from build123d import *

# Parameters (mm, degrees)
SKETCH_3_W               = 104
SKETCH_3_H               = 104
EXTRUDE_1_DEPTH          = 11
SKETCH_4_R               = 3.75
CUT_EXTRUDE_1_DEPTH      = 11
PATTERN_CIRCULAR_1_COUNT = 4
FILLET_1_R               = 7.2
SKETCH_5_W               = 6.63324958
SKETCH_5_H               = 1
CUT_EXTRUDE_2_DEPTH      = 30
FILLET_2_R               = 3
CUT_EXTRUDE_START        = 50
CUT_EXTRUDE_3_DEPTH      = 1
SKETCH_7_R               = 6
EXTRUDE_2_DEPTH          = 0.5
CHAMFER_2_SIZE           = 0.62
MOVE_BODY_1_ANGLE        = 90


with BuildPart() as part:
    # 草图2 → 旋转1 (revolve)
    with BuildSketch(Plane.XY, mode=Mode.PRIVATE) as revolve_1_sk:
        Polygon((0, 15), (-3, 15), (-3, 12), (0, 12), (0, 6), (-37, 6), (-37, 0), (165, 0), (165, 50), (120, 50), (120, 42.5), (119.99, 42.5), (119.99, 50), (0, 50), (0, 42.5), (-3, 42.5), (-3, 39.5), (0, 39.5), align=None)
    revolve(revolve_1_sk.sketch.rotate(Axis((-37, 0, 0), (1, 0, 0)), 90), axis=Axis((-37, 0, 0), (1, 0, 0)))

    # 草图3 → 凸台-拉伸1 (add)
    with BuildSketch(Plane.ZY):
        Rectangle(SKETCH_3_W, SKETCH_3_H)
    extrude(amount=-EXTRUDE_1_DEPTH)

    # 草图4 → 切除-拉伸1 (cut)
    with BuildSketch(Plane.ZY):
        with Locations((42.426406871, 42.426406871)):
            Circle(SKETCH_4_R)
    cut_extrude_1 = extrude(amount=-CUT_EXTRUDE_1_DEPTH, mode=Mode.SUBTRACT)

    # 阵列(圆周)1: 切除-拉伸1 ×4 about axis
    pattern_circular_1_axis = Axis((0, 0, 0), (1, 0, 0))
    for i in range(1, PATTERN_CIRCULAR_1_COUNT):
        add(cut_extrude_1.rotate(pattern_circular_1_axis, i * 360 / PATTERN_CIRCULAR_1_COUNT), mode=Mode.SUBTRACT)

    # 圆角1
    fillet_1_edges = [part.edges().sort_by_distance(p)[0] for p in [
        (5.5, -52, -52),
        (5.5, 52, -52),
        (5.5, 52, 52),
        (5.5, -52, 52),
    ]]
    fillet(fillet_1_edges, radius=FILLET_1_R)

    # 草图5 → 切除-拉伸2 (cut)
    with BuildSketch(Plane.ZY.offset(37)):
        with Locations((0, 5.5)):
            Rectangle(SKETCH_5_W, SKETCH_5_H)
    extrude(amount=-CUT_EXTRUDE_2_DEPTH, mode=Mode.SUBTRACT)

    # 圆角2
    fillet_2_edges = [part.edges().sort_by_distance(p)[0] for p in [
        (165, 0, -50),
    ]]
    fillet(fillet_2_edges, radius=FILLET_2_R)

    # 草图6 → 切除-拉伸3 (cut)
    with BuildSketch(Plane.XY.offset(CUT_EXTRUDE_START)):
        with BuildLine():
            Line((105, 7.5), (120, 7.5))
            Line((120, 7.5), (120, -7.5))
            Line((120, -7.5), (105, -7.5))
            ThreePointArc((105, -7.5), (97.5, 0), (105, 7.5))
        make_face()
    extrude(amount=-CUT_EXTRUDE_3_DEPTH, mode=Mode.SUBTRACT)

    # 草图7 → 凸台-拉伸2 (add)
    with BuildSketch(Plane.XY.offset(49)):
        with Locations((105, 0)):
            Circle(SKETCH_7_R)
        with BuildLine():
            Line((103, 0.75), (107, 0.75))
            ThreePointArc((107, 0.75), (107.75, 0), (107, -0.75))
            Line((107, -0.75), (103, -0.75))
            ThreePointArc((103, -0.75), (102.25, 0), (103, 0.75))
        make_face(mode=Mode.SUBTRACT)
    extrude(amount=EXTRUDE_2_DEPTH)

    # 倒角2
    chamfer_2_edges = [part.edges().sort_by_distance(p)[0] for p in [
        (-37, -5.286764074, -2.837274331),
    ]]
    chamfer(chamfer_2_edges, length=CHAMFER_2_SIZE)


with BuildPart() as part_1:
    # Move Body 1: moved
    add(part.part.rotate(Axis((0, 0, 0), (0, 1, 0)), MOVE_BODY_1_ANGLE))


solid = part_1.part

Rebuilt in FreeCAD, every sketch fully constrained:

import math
import FreeCAD as App
import Part
import Sketcher

V = App.Vector


def edges_at(feature, points):
    """Names of the edges that pass closest to the given points."""
    edges = feature.Shape.Edges
    near = lambda p: min(range(len(edges)), key=lambda i: edges[i].distToShape(Part.Vertex(*p))[0])
    return sorted({f"Edge{near(p) + 1}" for p in points})


def add_polygon(sketch, points):
    """Adds a closed chain of lines whose ends are joined by coincident constraints."""
    first, n = sketch.GeometryCount, len(points)
    for a, b in zip(points, points[1:] + points[:1]):
        sketch.addGeometry(Part.LineSegment(App.Vector(*a, 0), App.Vector(*b, 0)), False)
    for i in range(n):
        sketch.addConstraint(Sketcher.Constraint("Coincident", first + i, 2, first + (i + 1) % n, 1))

doc = App.newDocument("Part")
body = doc.addObject("PartDesign::Body", "Body")

sketch1 = body.newObject("Sketcher::SketchObject", "Sketch")
sketch1.AttachmentSupport = (doc.getObject("XY_Plane"), [""])
sketch1.MapMode = "FlatFace"
add_polygon(sketch1, [(0, 15), (-3, 15), (-3, 12), (0, 12), (0, 6), (-37, 6), (-37, 0), (165, 0), (165, 50), (120, 50), (120, 42.5), (119.99, 42.5), (119.99, 50), (0, 50), (0, 42.5), (-3, 42.5), (-3, 39.5), (0, 39.5)])
sketch1.addConstraint(Sketcher.Constraint("Horizontal", 0))
sketch1.addConstraint(Sketcher.Constraint("Vertical", 1))
sketch1.addConstraint(Sketcher.Constraint("Horizontal", 2))
sketch1.addConstraint(Sketcher.Constraint("Vertical", 3))
sketch1.addConstraint(Sketcher.Constraint("Horizontal", 4))
sketch1.addConstraint(Sketcher.Constraint("Vertical", 5))
sketch1.addConstraint(Sketcher.Constraint("Horizontal", 6))
sketch1.addConstraint(Sketcher.Constraint("Vertical", 7))
sketch1.addConstraint(Sketcher.Constraint("Horizontal", 8))
sketch1.addConstraint(Sketcher.Constraint("Vertical", 9))
sketch1.addConstraint(Sketcher.Constraint("Horizontal", 10))
sketch1.addConstraint(Sketcher.Constraint("Vertical", 11))
sketch1.addConstraint(Sketcher.Constraint("Horizontal", 12))
sketch1.addConstraint(Sketcher.Constraint("Vertical", 13))
sketch1.addConstraint(Sketcher.Constraint("Horizontal", 14))
sketch1.addConstraint(Sketcher.Constraint("Vertical", 15))
sketch1.addConstraint(Sketcher.Constraint("Horizontal", 16))
sketch1.addConstraint(Sketcher.Constraint("Vertical", 17))
sketch1.addConstraint(Sketcher.Constraint("PointOnObject", 2, 2, -2))
sketch1.addConstraint(Sketcher.Constraint("PointOnObject", 5, 2, -1))
sketch1.addConstraint(Sketcher.Constraint("PointOnObject", 12, 2, -2))
sketch1.addConstraint(Sketcher.Constraint("PointOnObject", 16, 2, -2))
sketch1.addConstraint(Sketcher.Constraint("Horizontal", 8, 2, 11, 2))
sketch1.addConstraint(Sketcher.Constraint("Horizontal", 10, 2, 13, 2))
sketch1.addConstraint(Sketcher.Constraint("Vertical", 1, 2, 14, 2))
sketch1.addConstraint(Sketcher.Constraint("Equal", 16, 1))
sketch1.addConstraint(Sketcher.Constraint("Equal", 3, 5))
sketch1.addConstraint(Sketcher.Constraint("Equal", 1, 15))
sketch1.addConstraint(Sketcher.Constraint("DistanceX", 0, 2, 0, 1, 3.0))
sketch1.addConstraint(Sketcher.Constraint("DistanceX", 4, 2, 4, 1, 37.0))
sketch1.addConstraint(Sketcher.Constraint("DistanceX", 6, 1, 6, 2, 202.0))
sketch1.addConstraint(Sketcher.Constraint("DistanceX", 8, 2, 8, 1, 45.0))
sketch1.addConstraint(Sketcher.Constraint("DistanceY", 3, 2, 3, 1, 6.0))
sketch1.addConstraint(Sketcher.Constraint("DistanceY", 7, 1, 7, 2, 50.0))
sketch1.addConstraint(Sketcher.Constraint("DistanceY", 9, 2, 9, 1, 7.5))
sketch1.addConstraint(Sketcher.Constraint("DistanceX", 10, 2, 10, 1, 0.01))
revolution = body.newObject("PartDesign::Revolution", "Revolution")
revolution.Profile = sketch1
revolution.ReferenceAxis = (sketch1, ["H_Axis"])
revolution.Angle = 360

sketch2 = body.newObject("Sketcher::SketchObject", "Sketch001")
sketch2.AttachmentSupport = (doc.getObject("YZ_Plane"), [""])
sketch2.MapMode = "FlatFace"
add_polygon(sketch2, [(52, -52), (-52, -52), (-52, 52), (52, 52)])
sketch2.addConstraint(Sketcher.Constraint("Horizontal", 0))
sketch2.addConstraint(Sketcher.Constraint("Vertical", 1))
sketch2.addConstraint(Sketcher.Constraint("Horizontal", 2))
sketch2.addConstraint(Sketcher.Constraint("Vertical", 3))
sketch2.addConstraint(Sketcher.Constraint("Symmetric", 0, 2, 2, 2, -1, 1))
sketch2.addConstraint(Sketcher.Constraint("Equal", 2, 1))
sketch2.addConstraint(Sketcher.Constraint("DistanceX", 0, 2, 0, 1, 104.0))
pad1 = body.newObject("PartDesign::Pad", "Pad")
pad1.Profile = sketch2
pad1.Length = 11

sketch3 = body.newObject("Sketcher::SketchObject", "Sketch002")
sketch3.AttachmentSupport = (doc.getObject("YZ_Plane"), [""])
sketch3.MapMode = "FlatFace"
sketch3.addGeometry(Part.Circle(V(42.426407, 42.426407, 0), V(0, 0, 1), 3.75), False)
sketch3.addConstraint(Sketcher.Constraint("Diameter", 0, 7.5))
sketch3.addConstraint(Sketcher.Constraint("DistanceX", -1, 1, 0, 3, 42.426407))
sketch3.addConstraint(Sketcher.Constraint("DistanceY", -1, 1, 0, 3, 42.426407))
pocket1 = body.newObject("PartDesign::Pocket", "Pocket")
pocket1.Profile = sketch3
pocket1.Length = 11
pocket1.Reversed = True
doc.recompute()

polarpattern = body.newObject("PartDesign::PolarPattern", "PolarPattern")
polarpattern.Originals = [pocket1]
polarpattern.Axis = (doc.getObject("X_Axis"), [""])
polarpattern.Angle = 360
polarpattern.Occurrences = 4
body.Tip = polarpattern
doc.recompute()

fillet = body.newObject("PartDesign::Fillet", "Fillet")
fillet.Base = (polarpattern, edges_at(polarpattern, [
    (5.5, -52, -52),
    (5.5, 52, -52),
    (5.5, 52, 52),
    (5.5, -52, 52),
]))
fillet.Radius = 7.2

sketch4 = body.newObject("Sketcher::SketchObject", "Sketch003")
sketch4.AttachmentSupport = (doc.getObject("YZ_Plane"), [""])
sketch4.MapMode = "FlatFace"
sketch4.AttachmentOffset = App.Placement(V(0, 0, -37), App.Rotation())
add_polygon(sketch4, [(6, -3.316625), (5, -3.316625), (5, 3.316625), (6, 3.316625)])
sketch4.addConstraint(Sketcher.Constraint("Horizontal", 0))
sketch4.addConstraint(Sketcher.Constraint("Vertical", 1))
sketch4.addConstraint(Sketcher.Constraint("Horizontal", 2))
sketch4.addConstraint(Sketcher.Constraint("Vertical", 3))
sketch4.addConstraint(Sketcher.Constraint("DistanceX", 0, 2, 0, 1, 1.0))
sketch4.addConstraint(Sketcher.Constraint("DistanceX", -1, 1, 0, 2, 5.0))
sketch4.addConstraint(Sketcher.Constraint("DistanceY", 1, 1, 1, 2, 6.63325))
sketch4.addConstraint(Sketcher.Constraint("DistanceY", 0, 2, -1, 1, 3.316625))
pocket2 = body.newObject("PartDesign::Pocket", "Pocket001")
pocket2.Profile = sketch4
pocket2.Length = 30
pocket2.Reversed = True
doc.recompute()

fillet2 = body.newObject("PartDesign::Fillet", "Fillet001")
fillet2.Base = (pocket2, edges_at(pocket2, [(165, 0, -50)]))
fillet2.Radius = 3

sketch5 = body.newObject("Sketcher::SketchObject", "Sketch004")
sketch5.AttachmentSupport = (doc.getObject("XY_Plane"), [""])
sketch5.MapMode = "FlatFace"
sketch5.AttachmentOffset = App.Placement(V(0, 0, 50), App.Rotation())
sketch5.addGeometry(Part.LineSegment(V(120, 7.5, 0), V(105, 7.5, 0)), False)
sketch5.addGeometry(Part.ArcOfCircle(Part.Circle(V(105, 0, 0), V(0, 0, 1), 7.5), math.radians(90), math.radians(270)), False)
sketch5.addGeometry(Part.LineSegment(V(105, -7.5, 0), V(120, -7.5, 0)), False)
sketch5.addGeometry(Part.LineSegment(V(120, -7.5, 0), V(120, 7.5, 0)), False)
sketch5.addConstraint(Sketcher.Constraint("Tangent", 0, 2, 1, 1))
sketch5.addConstraint(Sketcher.Constraint("Tangent", 1, 2, 2, 1))
sketch5.addConstraint(Sketcher.Constraint("Coincident", 2, 2, 3, 1))
sketch5.addConstraint(Sketcher.Constraint("Coincident", 3, 2, 0, 1))
sketch5.addConstraint(Sketcher.Constraint("Horizontal", 0))
sketch5.addConstraint(Sketcher.Constraint("Horizontal", 2))
sketch5.addConstraint(Sketcher.Constraint("Vertical", 3))
sketch5.addConstraint(Sketcher.Constraint("PointOnObject", 1, 3, -1))
sketch5.addConstraint(Sketcher.Constraint("Equal", 2, 3))
sketch5.addConstraint(Sketcher.Constraint("Radius", 1, 7.5))
sketch5.addConstraint(Sketcher.Constraint("DistanceX", -1, 1, 1, 3, 105.0))
pocket3 = body.newObject("PartDesign::Pocket", "Pocket002")
pocket3.Profile = sketch5
pocket3.Length = 1

sketch6 = body.newObject("Sketcher::SketchObject", "Sketch005")
sketch6.AttachmentSupport = (doc.getObject("XY_Plane"), [""])
sketch6.MapMode = "FlatFace"
sketch6.AttachmentOffset = App.Placement(V(0, 0, 49), App.Rotation())
sketch6.addGeometry(Part.Circle(V(105, 0, 0), V(0, 0, 1), 6), False)
sketch6.addGeometry(Part.ArcOfCircle(Part.Circle(V(103, 0, 0), V(0, 0, 1), 0.75), math.radians(90), math.radians(270)), False)
sketch6.addGeometry(Part.LineSegment(V(103, 0.75, 0), V(107, 0.75, 0)), False)
sketch6.addGeometry(Part.ArcOfCircle(Part.Circle(V(107, 0, 0), V(0, 0, 1), 0.75), math.radians(-90), math.radians(90)), False)
sketch6.addGeometry(Part.LineSegment(V(107, -0.75, 0), V(103, -0.75, 0)), False)
sketch6.addConstraint(Sketcher.Constraint("Tangent", 1, 1, 2, 1))
sketch6.addConstraint(Sketcher.Constraint("Tangent", 2, 2, 3, 2))
sketch6.addConstraint(Sketcher.Constraint("Tangent", 3, 1, 4, 1))
sketch6.addConstraint(Sketcher.Constraint("Tangent", 4, 2, 1, 2))
sketch6.addConstraint(Sketcher.Constraint("Horizontal", 2))
sketch6.addConstraint(Sketcher.Constraint("Horizontal", 4))
sketch6.addConstraint(Sketcher.Constraint("PointOnObject", 0, 3, -1))
sketch6.addConstraint(Sketcher.Constraint("PointOnObject", 1, 3, -1))
sketch6.addConstraint(Sketcher.Constraint("Diameter", 0, 12.0))
sketch6.addConstraint(Sketcher.Constraint("DistanceX", 2, 1, 2, 2, 4.0))
sketch6.addConstraint(Sketcher.Constraint("Radius", 1, 0.75))
sketch6.addConstraint(Sketcher.Constraint("DistanceX", -1, 1, 0, 3, 105.0))
sketch6.addConstraint(Sketcher.Constraint("DistanceX", -1, 1, 1, 3, 103.0))
pad2 = body.newObject("PartDesign::Pad", "Pad001")
pad2.Profile = sketch6
pad2.Length = 0.5
doc.recompute()

chamfer = body.newObject("PartDesign::Chamfer", "Chamfer")
chamfer.Base = (pad2, edges_at(pad2, [(-37, -5.287, -2.837)]))
chamfer.Size = 0.62
body2 = doc.addObject("PartDesign::Body", "Body001")
doc.recompute()

body.Placement = App.Placement(V(0, 0, 0), App.Rotation(V(0, 1, 0), 90))
boolean = body2.newObject("PartDesign::Boolean", "Boolean")
boolean.Type = "Fuse"
boolean.addObjects([body])

doc.recompute()
